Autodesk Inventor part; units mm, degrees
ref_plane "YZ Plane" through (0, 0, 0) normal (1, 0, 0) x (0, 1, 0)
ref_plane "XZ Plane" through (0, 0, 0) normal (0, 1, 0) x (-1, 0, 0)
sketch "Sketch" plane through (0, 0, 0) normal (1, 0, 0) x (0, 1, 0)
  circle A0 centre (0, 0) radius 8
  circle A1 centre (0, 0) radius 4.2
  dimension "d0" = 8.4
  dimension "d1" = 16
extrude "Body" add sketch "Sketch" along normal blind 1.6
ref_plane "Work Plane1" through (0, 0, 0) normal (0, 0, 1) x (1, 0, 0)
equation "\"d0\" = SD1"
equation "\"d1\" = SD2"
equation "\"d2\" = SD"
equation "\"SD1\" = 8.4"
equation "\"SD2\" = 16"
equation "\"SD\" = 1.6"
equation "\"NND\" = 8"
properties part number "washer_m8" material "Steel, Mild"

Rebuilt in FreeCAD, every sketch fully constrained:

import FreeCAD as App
import Part
import Sketcher
from FreeCAD import Vector

doc = App.newDocument("Part")
body = doc.addObject("PartDesign::Body", "Body")

# Sketch on YZ plane
sketch1 = body.newObject("Sketcher::SketchObject", "Sketch")
sketch1.AttachmentSupport = (doc.getObject("YZ_Plane"), [""])
sketch1.MapMode = "FlatFace"
sketch1.addGeometry([
    Part.Circle(Vector(0, 0, 0), Vector(0, 0, 1), 8),
    Part.Circle(Vector(0, 0, 0), Vector(0, 0, 1), 4.2),
], False)
sketch1.addConstraint([
    Sketcher.Constraint("Coincident", 0, 3, -1, 1),
    Sketcher.Constraint("Coincident", 1, 3, -1, 1),
    Sketcher.Constraint("Diameter", 0, 16.0),
    Sketcher.Constraint("Diameter", 1, 8.4),
])
pad1 = body.newObject("PartDesign::Pad", "Pad")
pad1.Profile = sketch1
pad1.Length = 1.6

doc.recompute()
